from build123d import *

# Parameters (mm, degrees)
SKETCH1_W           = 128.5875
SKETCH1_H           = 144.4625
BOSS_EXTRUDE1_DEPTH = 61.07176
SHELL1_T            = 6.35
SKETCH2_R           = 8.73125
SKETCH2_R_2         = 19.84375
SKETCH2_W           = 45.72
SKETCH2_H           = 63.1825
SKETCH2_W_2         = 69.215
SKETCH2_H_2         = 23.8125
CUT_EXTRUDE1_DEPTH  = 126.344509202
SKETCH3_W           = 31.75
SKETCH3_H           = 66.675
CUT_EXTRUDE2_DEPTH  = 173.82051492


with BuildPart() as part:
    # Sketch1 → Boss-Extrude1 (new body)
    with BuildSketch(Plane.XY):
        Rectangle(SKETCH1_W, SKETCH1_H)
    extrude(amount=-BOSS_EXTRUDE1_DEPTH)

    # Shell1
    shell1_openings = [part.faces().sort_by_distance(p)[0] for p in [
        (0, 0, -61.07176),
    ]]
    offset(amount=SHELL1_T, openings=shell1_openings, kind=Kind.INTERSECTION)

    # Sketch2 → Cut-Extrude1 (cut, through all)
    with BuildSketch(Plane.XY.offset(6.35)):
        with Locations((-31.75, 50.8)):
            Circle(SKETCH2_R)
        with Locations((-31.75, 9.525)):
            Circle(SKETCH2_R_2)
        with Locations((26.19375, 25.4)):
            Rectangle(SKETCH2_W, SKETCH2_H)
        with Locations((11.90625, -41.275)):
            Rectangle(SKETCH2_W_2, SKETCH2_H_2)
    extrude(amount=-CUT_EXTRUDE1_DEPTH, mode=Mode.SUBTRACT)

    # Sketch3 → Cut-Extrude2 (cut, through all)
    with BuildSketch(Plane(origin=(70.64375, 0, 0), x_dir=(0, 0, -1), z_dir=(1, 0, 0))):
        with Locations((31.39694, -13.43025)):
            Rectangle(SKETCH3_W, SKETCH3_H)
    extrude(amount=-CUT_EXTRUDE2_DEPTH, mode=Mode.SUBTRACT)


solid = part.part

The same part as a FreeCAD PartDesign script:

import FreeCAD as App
import Part
import Sketcher
from FreeCAD import Vector
Q = App.Units.Quantity


def faces_at(feature, points):
    """Names of the faces that lie closest to the given points."""
    faces = feature.Shape.Faces
    near = lambda p: min(range(len(faces)), key=lambda i: faces[i].distToShape(Part.Vertex(*p))[0])
    return sorted({f"Face{near(p) + 1}" for p in points})


def add_polygon(sketch, points):
    """Adds a closed chain of lines whose ends are joined by coincident constraints."""
    first, n = sketch.GeometryCount, len(points)
    for a, b in zip(points, points[1:] + points[:1]):
        sketch.addGeometry(Part.LineSegment(App.Vector(*a, 0), App.Vector(*b, 0)), False)
    for i in range(n):
        sketch.addConstraint(Sketcher.Constraint("Coincident", first + i, 2, first + (i + 1) % n, 1))

doc = App.newDocument("Part")
body = doc.addObject("PartDesign::Body", "Body")

sketch1 = body.newObject("Sketcher::SketchObject", "Sketch")
sketch1.AttachmentSupport = (doc.getObject("XY_Plane"), [""])
sketch1.MapMode = "FlatFace"
add_polygon(sketch1, [(-64.29375, 72.23125), (-64.29375, -72.23125), (64.29375, -72.23125), (64.29375, 72.23125)])
sketch1.addConstraint([
    Sketcher.Constraint("Vertical", 0),
    Sketcher.Constraint("Horizontal", 1),
    Sketcher.Constraint("Vertical", 2),
    Sketcher.Constraint("Horizontal", 3),
    Sketcher.Constraint("Symmetric", 0, 2, 2, 2, -1, 1),
    Sketcher.Constraint("DistanceX", 1, 1, 1, 2, Q("5.0625 in")),
    Sketcher.Constraint("DistanceY", 0, 2, 0, 1, Q("5.6875 in")),
])
pad1 = body.newObject("PartDesign::Pad", "Pad")
pad1.Profile = sketch1
pad1.Length = Q("2.4044 in")
pad1.Reversed = True
doc.recompute()

thickness = body.newObject("PartDesign::Thickness", "Thickness")
thickness.Base = (pad1, faces_at(pad1, [(0, 0, -61.072)]))
thickness.Value = Q("0.25 in")
thickness.Reversed = False
thickness.Join = "Intersection"

sketch2 = body.newObject("Sketcher::SketchObject", "Sketch001")
sketch2.AttachmentSupport = (doc.getObject("XY_Plane"), [""])
sketch2.MapMode = "FlatFace"
sketch2.AttachmentOffset = App.Placement(Vector(0, 0, 0.25 * 25.4), App.Rotation())
sketch2.addGeometry(Part.Circle(Vector(-31.75, 50.8, 0), Vector(0, 0, 1), 8.73125), False)
sketch2.addGeometry(Part.Circle(Vector(-31.75, 9.525, 0), Vector(0, 0, 1), 19.84375), False)
add_polygon(sketch2, [(3.33375, 56.99125), (3.33375, -6.19125), (49.05375, -6.19125), (49.05375, 56.99125)])
add_polygon(sketch2, [(-22.70125, -29.36875), (-22.70125, -53.18125), (46.51375, -53.18125), (46.51375, -29.36875)])
sketch2.addConstraint([
    Sketcher.Constraint("Vertical", 2),
    Sketcher.Constraint("Horizontal", 3),
    Sketcher.Constraint("Vertical", 4),
    Sketcher.Constraint("Horizontal", 5),
    Sketcher.Constraint("Vertical", 6),
    Sketcher.Constraint("Horizontal", 7),
    Sketcher.Constraint("Vertical", 8),
    Sketcher.Constraint("Horizontal", 9),
    Sketcher.Constraint("Vertical", 0, 3, 1, 3),
    Sketcher.Constraint("Diameter", 0, Q("0.6875 in")),
    Sketcher.Constraint("Diameter", 1, Q("1.5625 in")),
    Sketcher.Constraint("DistanceX", 3, 1, 3, 2, Q("1.8 in")),
    Sketcher.Constraint("DistanceY", -1, 1, 0, 3, Q("2 in")),
    Sketcher.Constraint("DistanceX", 7, 2, 3, 2, Q("0.1 in")),
    Sketcher.Constraint("DistanceY", 8, 2, 4, 2, Q("3.4 in")),
    Sketcher.Constraint("DistanceX", 7, 1, 7, 2, Q("2.725 in")),
    Sketcher.Constraint("DistanceY", 6, 2, 6, 1, Q("0.9375 in")),
    Sketcher.Constraint("DistanceX", 0, 3, -1, 1, Q("1.25 in")),
    Sketcher.Constraint("DistanceY", 6, 2, 2, 2, Q("1.85 in")),
    Sketcher.Constraint("DistanceY", -1, 1, 1, 3, Q("0.375 in")),
    Sketcher.Constraint("DistanceY", 6, 2, -1, 1, Q("2.09375 in")),
    Sketcher.Constraint("DistanceX", -1, 1, 2, 2, Q("3.33375 mm")),
])
pocket1 = body.newObject("PartDesign::Pocket", "Pocket")
pocket1.Profile = sketch2
pocket1.Type = "ThroughAll"

sketch3 = body.newObject("Sketcher::SketchObject", "Sketch002")
sketch3.AttachmentSupport = (doc.getObject("YZ_Plane"), [""])
sketch3.MapMode = "FlatFace"
sketch3.AttachmentOffset = App.Placement(Vector(0, 0, 2.78125 * 25.4), App.Rotation())
add_polygon(sketch3, [(19.90725, -15.52194), (-46.76775, -15.52194), (-46.76775, -47.27194), (19.90725, -47.27194)])
sketch3.addConstraint([
    Sketcher.Constraint("Horizontal", 0),
    Sketcher.Constraint("Vertical", 1),
    Sketcher.Constraint("Horizontal", 2),
    Sketcher.Constraint("Vertical", 3),
    Sketcher.Constraint("DistanceY", 1, 2, 1, 1, Q("1.25 in")),
    Sketcher.Constraint("DistanceX", 0, 2, 0, 1, Q("2.625 in")),
    Sketcher.Constraint("DistanceY", 0, 2, -1, 1, Q("0.6111 in")),
    Sketcher.Constraint("DistanceX", 0, 2, -1, 1, Q("46.76775 mm")),
])
pocket2 = body.newObject("PartDesign::Pocket", "Pocket001")
pocket2.Profile = sketch3
pocket2.Type = "ThroughAll"

doc.recompute()
